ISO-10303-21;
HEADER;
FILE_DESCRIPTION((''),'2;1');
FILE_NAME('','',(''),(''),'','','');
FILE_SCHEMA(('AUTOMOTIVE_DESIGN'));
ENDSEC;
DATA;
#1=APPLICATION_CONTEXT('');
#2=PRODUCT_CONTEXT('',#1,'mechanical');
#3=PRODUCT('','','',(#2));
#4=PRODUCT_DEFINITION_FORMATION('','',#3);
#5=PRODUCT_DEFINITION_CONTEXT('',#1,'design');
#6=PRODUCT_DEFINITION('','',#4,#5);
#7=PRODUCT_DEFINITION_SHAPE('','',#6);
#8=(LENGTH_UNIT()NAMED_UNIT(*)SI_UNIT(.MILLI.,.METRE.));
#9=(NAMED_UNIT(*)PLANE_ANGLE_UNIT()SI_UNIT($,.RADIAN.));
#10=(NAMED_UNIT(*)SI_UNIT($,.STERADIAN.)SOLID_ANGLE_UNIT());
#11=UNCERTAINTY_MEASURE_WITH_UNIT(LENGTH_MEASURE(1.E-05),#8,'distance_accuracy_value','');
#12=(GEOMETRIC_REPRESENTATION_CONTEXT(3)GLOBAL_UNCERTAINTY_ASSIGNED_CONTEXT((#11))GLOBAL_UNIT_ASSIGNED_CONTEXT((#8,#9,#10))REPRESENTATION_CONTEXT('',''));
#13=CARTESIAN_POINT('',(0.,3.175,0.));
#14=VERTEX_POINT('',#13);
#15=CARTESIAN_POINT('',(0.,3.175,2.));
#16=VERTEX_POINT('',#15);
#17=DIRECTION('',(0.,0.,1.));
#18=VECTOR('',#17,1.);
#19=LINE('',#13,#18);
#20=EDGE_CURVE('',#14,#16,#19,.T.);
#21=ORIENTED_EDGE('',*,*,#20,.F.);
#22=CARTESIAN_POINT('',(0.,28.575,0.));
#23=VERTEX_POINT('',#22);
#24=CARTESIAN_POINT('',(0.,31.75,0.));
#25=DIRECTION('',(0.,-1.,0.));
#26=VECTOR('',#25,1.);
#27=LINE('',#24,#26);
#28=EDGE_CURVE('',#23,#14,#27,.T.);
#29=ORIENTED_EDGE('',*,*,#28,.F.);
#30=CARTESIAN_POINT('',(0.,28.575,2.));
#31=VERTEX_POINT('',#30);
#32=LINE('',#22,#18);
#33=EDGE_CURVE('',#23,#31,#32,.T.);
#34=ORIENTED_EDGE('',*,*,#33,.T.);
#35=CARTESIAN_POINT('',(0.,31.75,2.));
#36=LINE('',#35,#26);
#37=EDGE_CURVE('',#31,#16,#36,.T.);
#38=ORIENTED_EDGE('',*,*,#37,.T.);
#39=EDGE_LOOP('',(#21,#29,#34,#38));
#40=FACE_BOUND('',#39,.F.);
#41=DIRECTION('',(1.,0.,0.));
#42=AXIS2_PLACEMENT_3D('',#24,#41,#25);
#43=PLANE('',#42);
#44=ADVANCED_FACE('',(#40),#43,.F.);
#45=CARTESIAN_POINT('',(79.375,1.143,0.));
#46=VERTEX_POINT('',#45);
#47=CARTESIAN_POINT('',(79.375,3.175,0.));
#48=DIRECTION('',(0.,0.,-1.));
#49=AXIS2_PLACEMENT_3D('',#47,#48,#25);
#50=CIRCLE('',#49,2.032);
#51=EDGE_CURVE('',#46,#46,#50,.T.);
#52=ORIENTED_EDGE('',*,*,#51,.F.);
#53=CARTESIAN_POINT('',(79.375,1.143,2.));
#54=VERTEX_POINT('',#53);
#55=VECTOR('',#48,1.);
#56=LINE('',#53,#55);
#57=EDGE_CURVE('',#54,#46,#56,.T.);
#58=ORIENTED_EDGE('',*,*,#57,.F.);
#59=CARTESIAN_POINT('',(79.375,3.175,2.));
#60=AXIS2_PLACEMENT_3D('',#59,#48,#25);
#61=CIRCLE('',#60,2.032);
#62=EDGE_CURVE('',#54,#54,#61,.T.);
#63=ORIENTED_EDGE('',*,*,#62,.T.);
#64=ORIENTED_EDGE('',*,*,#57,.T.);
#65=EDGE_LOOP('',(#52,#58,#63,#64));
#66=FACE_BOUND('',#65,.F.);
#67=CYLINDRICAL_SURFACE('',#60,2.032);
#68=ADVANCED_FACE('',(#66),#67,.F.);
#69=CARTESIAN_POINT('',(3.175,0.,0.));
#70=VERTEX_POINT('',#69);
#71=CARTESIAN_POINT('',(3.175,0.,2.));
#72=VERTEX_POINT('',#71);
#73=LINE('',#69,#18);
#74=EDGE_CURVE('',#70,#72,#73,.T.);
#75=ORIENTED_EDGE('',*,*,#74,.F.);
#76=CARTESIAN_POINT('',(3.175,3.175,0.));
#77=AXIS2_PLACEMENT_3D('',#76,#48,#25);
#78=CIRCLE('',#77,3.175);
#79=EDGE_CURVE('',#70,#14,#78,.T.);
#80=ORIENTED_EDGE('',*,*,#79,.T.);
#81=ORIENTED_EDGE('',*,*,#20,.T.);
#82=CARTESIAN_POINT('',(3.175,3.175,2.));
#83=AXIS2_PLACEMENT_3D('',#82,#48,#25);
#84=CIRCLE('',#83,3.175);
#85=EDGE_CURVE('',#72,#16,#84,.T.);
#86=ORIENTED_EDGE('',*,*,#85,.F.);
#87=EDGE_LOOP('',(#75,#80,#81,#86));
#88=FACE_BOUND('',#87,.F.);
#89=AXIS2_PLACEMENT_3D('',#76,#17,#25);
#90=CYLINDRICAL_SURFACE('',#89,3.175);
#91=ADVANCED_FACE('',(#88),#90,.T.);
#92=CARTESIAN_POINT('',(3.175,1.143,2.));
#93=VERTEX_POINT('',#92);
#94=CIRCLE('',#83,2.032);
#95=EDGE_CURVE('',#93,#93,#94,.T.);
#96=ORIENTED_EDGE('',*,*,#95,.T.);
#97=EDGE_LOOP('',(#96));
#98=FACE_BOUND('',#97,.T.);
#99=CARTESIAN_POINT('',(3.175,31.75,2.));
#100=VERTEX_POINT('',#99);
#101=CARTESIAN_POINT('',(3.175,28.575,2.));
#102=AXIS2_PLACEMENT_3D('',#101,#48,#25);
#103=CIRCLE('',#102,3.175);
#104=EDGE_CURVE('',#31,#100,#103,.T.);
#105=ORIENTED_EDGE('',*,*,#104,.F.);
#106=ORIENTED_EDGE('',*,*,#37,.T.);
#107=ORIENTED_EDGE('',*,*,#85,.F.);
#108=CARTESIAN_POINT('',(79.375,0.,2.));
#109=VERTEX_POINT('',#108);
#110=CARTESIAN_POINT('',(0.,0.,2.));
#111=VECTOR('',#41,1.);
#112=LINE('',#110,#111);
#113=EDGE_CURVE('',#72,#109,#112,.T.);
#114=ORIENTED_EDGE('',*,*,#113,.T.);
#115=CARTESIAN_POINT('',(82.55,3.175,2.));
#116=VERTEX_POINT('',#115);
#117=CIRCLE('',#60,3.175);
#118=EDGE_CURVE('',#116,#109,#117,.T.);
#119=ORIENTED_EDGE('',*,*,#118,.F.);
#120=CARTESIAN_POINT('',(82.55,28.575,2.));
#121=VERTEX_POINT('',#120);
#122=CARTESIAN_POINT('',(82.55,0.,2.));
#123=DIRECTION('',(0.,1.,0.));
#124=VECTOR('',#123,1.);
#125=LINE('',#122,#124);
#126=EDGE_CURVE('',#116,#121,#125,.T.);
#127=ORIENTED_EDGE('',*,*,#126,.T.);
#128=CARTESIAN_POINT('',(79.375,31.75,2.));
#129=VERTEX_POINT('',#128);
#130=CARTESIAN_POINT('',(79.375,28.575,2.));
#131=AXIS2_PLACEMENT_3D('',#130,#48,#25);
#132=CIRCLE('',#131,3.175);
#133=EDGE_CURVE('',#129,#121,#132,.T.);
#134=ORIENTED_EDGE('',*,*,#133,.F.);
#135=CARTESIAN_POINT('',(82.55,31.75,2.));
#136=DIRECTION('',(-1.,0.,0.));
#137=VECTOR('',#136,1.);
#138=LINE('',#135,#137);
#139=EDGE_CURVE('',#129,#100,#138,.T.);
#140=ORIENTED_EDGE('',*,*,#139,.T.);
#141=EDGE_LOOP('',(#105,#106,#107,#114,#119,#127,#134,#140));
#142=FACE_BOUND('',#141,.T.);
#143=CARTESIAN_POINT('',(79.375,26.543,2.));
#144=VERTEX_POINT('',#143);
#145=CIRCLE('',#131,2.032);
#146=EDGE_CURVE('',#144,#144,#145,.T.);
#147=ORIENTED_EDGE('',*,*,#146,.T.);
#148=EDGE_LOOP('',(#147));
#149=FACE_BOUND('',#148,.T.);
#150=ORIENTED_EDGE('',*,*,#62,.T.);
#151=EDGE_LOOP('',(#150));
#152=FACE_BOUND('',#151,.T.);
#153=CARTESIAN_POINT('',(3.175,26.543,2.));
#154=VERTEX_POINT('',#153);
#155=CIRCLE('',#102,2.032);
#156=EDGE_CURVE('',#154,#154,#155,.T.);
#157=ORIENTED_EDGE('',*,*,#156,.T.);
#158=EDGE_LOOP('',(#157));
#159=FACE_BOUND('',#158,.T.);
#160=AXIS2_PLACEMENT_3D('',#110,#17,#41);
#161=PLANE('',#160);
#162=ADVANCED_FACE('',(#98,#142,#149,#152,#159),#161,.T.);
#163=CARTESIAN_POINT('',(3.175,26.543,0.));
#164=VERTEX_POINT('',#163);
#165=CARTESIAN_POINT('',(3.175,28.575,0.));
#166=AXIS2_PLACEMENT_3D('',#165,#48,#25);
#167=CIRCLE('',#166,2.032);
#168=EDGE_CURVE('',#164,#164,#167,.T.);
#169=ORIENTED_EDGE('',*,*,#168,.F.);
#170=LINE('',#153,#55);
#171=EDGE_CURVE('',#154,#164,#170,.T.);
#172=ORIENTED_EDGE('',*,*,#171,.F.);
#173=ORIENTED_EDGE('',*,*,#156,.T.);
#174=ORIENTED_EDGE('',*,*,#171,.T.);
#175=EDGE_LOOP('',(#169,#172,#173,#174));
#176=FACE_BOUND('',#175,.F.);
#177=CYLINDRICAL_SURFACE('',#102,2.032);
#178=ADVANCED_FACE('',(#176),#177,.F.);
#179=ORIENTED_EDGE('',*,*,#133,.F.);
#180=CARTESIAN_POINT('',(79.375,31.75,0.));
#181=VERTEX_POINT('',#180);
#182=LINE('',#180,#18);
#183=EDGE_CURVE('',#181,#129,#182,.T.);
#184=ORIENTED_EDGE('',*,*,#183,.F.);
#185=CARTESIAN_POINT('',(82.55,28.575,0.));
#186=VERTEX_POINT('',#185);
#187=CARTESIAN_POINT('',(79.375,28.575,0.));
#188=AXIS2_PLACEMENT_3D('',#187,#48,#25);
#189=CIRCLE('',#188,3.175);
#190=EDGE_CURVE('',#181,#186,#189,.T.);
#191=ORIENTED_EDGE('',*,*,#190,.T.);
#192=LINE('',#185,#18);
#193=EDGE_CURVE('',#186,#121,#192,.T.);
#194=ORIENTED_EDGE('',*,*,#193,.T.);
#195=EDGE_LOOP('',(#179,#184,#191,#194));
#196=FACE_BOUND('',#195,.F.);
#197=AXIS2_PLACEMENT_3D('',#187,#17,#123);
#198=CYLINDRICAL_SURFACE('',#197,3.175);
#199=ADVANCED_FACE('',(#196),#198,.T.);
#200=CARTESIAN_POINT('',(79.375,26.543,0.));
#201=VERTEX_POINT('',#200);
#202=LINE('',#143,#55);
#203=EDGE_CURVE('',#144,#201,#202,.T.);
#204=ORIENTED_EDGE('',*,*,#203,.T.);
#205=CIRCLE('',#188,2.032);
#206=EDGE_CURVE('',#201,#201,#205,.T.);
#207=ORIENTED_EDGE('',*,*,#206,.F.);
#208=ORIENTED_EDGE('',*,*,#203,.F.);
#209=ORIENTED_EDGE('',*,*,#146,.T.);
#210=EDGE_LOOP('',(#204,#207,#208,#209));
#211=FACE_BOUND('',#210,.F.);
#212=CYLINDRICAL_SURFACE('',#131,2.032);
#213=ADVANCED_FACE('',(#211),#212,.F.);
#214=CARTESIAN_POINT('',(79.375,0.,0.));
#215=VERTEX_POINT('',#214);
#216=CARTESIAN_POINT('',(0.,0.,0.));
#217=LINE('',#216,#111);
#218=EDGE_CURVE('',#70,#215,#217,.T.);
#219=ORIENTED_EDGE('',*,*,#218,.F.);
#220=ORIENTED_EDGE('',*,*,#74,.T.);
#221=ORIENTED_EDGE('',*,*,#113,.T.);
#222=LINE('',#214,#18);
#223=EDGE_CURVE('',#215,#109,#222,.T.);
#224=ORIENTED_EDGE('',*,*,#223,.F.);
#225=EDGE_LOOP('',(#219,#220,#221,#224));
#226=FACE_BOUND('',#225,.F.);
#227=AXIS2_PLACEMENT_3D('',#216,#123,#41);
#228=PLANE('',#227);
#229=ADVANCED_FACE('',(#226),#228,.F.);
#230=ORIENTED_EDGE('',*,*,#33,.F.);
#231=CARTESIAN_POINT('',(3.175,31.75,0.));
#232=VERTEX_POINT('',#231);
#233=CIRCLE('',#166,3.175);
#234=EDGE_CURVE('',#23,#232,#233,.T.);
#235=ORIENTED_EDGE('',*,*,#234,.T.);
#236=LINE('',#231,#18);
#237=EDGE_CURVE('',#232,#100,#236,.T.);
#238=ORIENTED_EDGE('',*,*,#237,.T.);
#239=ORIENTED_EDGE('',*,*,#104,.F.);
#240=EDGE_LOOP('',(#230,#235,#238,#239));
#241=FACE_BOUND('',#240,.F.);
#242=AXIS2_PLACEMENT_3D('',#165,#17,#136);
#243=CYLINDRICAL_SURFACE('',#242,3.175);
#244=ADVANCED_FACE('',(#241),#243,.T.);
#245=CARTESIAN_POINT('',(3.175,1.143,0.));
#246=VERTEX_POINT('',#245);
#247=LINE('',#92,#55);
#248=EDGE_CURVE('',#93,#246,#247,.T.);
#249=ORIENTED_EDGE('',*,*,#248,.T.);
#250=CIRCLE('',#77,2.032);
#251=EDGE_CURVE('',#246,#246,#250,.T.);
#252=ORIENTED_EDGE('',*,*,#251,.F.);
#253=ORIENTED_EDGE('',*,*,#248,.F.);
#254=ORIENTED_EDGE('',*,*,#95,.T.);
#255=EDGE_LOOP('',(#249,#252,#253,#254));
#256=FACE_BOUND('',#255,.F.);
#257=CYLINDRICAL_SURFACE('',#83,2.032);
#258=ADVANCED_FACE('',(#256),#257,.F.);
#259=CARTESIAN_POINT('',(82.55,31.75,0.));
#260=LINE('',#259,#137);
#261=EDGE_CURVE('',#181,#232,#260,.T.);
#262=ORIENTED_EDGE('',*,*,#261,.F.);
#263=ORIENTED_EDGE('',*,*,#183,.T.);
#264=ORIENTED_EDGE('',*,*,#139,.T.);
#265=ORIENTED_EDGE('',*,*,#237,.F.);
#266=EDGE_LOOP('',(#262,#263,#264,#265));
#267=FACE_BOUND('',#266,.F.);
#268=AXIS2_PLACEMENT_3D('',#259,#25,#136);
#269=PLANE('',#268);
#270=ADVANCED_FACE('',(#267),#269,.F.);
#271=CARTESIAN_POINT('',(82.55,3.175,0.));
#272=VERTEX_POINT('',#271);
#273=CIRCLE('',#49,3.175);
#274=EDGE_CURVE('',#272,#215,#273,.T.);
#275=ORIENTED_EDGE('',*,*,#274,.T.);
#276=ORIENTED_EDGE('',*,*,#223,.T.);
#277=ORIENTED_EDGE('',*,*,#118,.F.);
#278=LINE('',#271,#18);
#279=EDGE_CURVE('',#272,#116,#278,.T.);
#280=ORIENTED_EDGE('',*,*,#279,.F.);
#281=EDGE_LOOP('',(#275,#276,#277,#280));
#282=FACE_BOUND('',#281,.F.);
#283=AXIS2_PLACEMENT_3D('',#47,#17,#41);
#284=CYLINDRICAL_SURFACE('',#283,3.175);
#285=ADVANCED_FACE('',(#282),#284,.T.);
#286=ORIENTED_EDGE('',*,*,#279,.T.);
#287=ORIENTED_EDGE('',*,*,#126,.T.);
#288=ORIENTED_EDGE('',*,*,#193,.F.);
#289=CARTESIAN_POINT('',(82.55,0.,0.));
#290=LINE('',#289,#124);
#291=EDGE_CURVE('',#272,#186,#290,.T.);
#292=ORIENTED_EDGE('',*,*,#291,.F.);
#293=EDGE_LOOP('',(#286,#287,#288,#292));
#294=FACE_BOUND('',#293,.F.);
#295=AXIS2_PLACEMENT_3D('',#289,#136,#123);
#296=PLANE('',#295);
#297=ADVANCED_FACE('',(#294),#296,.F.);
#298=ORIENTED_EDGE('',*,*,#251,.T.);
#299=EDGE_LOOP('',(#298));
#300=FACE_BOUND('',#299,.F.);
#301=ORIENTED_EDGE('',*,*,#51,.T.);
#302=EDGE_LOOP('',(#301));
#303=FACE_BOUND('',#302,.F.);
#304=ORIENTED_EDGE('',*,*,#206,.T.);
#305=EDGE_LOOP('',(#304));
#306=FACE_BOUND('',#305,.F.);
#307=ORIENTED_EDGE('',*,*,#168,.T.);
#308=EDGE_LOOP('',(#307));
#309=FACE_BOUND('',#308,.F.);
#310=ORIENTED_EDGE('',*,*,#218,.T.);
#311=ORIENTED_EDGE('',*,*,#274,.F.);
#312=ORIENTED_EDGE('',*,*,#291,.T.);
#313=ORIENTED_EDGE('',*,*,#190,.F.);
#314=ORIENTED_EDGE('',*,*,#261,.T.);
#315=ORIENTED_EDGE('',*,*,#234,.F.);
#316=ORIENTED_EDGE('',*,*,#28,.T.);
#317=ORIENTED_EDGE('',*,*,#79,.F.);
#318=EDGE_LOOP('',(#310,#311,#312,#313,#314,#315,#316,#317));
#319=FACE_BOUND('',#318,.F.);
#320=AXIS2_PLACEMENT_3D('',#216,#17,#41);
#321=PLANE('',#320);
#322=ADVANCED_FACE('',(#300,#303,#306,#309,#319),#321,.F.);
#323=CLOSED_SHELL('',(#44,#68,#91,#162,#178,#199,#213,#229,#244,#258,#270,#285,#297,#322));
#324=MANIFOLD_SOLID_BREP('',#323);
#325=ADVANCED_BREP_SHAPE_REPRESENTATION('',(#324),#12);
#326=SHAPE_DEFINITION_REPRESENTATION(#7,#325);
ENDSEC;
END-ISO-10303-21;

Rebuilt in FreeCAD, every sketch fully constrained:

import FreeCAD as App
import Part
import Sketcher

V = App.Vector
Q = App.Units.Quantity


def edges_at(feature, points):
    """Names of the edges that pass closest to the given points."""
    edges = feature.Shape.Edges
    near = lambda p: min(range(len(edges)), key=lambda i: edges[i].distToShape(Part.Vertex(*p))[0])
    return sorted({f"Edge{near(p) + 1}" for p in points})


def add_polygon(sketch, points):
    """Adds a closed chain of lines whose ends are joined by coincident constraints."""
    first, n = sketch.GeometryCount, len(points)
    for a, b in zip(points, points[1:] + points[:1]):
        sketch.addGeometry(Part.LineSegment(App.Vector(*a, 0), App.Vector(*b, 0)), False)
    for i in range(n):
        sketch.addConstraint(Sketcher.Constraint("Coincident", first + i, 2, first + (i + 1) % n, 1))

doc = App.newDocument("Part")
body = doc.addObject("PartDesign::Body", "Body")

# Sketch on XY plane
sketch1 = body.newObject("Sketcher::SketchObject", "Sketch")
sketch1.AttachmentSupport = (doc.getObject("XY_Plane"), [""])
sketch1.MapMode = "FlatFace"
add_polygon(sketch1, [(0, 32), (0, 0), (83, 0), (83, 32)])  # lines 0-3
sketch1.addConstraint([
    Sketcher.Constraint("Vertical", 0),
    Sketcher.Constraint("Horizontal", 1),
    Sketcher.Constraint("Vertical", 2),
    Sketcher.Constraint("Horizontal", 3),
    Sketcher.Constraint("Coincident", 0, 2, -1, 1),
    Sketcher.Constraint("DistanceX", 1, 1, 1, 2, Q("3.25 in")),
    Sketcher.Constraint("DistanceY", 0, 2, 0, 1, Q("1.25 in")),
])
pad1 = body.newObject("PartDesign::Pad", "Pad")
pad1.Profile = sketch1
pad1.Length = 2
doc.recompute()

fillet = body.newObject("PartDesign::Fillet", "Fillet")
fillet.Base = (pad1, edges_at(pad1, [(0, 31.75, 1)]))
fillet.Radius = Q("0.125 in")
doc.recompute()

fillet2 = body.newObject("PartDesign::Fillet", "Fillet001")
fillet2.Base = (fillet, edges_at(fillet, [(82.55, 31.75, 1)]))
fillet2.Radius = Q("0.125 in")
doc.recompute()

fillet3 = body.newObject("PartDesign::Fillet", "Fillet002")
fillet3.Base = (fillet2, edges_at(fillet2, [(82.55, 0, 1)]))
fillet3.Radius = Q("0.125 in")
doc.recompute()

fillet4 = body.newObject("PartDesign::Fillet", "Fillet003")
fillet4.Base = (fillet3, edges_at(fillet3, [(0, 0, 1)]))
fillet4.Radius = Q("0.125 in")

# Sketch on XY plane
sketch2 = body.newObject("Sketcher::SketchObject", "Sketch001")
sketch2.AttachmentSupport = (doc.getObject("XY_Plane"), [""])
sketch2.MapMode = "FlatFace"
sketch2.AttachmentOffset = App.Placement(V(0, 0, 2), App.Rotation())
sketch2.addGeometry(Part.Circle(V(3.2, 3.2, 0), V(0, 0, 1), 2), False)
sketch2.addConstraint([
    Sketcher.Constraint("Diameter", 0, Q("0.16 in")),
    Sketcher.Constraint("DistanceX", -1, 1, 0, 3, Q("0.125 in")),
    Sketcher.Constraint("DistanceY", -1, 1, 0, 3, Q("0.125 in")),
])
doc.recompute()
hole = body.newObject("PartDesign::Hole", "Hole")
hole.Profile = sketch2
hole.ThreadType = "None"
hole.Diameter = Q("0.16 in")
hole.DepthType = "ThroughAll"

# Sketch on XY plane
sketch3 = body.newObject("Sketcher::SketchObject", "Sketch002")
sketch3.AttachmentSupport = (doc.getObject("XY_Plane"), [""])
sketch3.MapMode = "FlatFace"
sketch3.AttachmentOffset = App.Placement(V(0, 0, 2), App.Rotation())
sketch3.addGeometry(Part.Circle(V(3.2, 28.6, 0), V(0, 0, 1), 2), False)
sketch3.addConstraint([
    Sketcher.Constraint("Diameter", 0, Q("0.16 in")),
    Sketcher.Constraint("DistanceX", -1, 1, 0, 3, Q("0.125 in")),
    Sketcher.Constraint("DistanceY", -1, 1, 0, 3, Q("1.125 in")),
])
doc.recompute()
hole2 = body.newObject("PartDesign::Hole", "Hole001")
hole2.Profile = sketch3
hole2.ThreadType = "None"
hole2.Diameter = Q("0.16 in")
hole2.DepthType = "ThroughAll"

# Sketch on XY plane
sketch4 = body.newObject("Sketcher::SketchObject", "Sketch003")
sketch4.AttachmentSupport = (doc.getObject("XY_Plane"), [""])
sketch4.MapMode = "FlatFace"
sketch4.AttachmentOffset = App.Placement(V(0, 0, 2), App.Rotation())
sketch4.addGeometry(Part.Circle(V(79.4, 28.6, 0), V(0, 0, 1), 2), False)
sketch4.addConstraint([
    Sketcher.Constraint("Diameter", 0, Q("0.16 in")),
    Sketcher.Constraint("DistanceX", -1, 1, 0, 3, Q("3.125 in")),
    Sketcher.Constraint("DistanceY", -1, 1, 0, 3, Q("1.125 in")),
])
doc.recompute()
hole3 = body.newObject("PartDesign::Hole", "Hole002")
hole3.Profile = sketch4
hole3.ThreadType = "None"
hole3.Diameter = Q("0.16 in")
hole3.DepthType = "ThroughAll"

# Sketch on XY plane
sketch5 = body.newObject("Sketcher::SketchObject", "Sketch004")
sketch5.AttachmentSupport = (doc.getObject("XY_Plane"), [""])
sketch5.MapMode = "FlatFace"
sketch5.AttachmentOffset = App.Placement(V(0, 0, 2), App.Rotation())
sketch5.addGeometry(Part.Circle(V(79.4, 3.2, 0), V(0, 0, 1), 2), False)
sketch5.addConstraint([
    Sketcher.Constraint("Diameter", 0, Q("0.16 in")),
    Sketcher.Constraint("DistanceX", -1, 1, 0, 3, Q("3.125 in")),
    Sketcher.Constraint("DistanceY", -1, 1, 0, 3, Q("0.125 in")),
])
doc.recompute()
hole4 = body.newObject("PartDesign::Hole", "Hole003")
hole4.Profile = sketch5
hole4.ThreadType = "None"
hole4.Diameter = Q("0.16 in")
hole4.DepthType = "ThroughAll"

doc.recompute()
